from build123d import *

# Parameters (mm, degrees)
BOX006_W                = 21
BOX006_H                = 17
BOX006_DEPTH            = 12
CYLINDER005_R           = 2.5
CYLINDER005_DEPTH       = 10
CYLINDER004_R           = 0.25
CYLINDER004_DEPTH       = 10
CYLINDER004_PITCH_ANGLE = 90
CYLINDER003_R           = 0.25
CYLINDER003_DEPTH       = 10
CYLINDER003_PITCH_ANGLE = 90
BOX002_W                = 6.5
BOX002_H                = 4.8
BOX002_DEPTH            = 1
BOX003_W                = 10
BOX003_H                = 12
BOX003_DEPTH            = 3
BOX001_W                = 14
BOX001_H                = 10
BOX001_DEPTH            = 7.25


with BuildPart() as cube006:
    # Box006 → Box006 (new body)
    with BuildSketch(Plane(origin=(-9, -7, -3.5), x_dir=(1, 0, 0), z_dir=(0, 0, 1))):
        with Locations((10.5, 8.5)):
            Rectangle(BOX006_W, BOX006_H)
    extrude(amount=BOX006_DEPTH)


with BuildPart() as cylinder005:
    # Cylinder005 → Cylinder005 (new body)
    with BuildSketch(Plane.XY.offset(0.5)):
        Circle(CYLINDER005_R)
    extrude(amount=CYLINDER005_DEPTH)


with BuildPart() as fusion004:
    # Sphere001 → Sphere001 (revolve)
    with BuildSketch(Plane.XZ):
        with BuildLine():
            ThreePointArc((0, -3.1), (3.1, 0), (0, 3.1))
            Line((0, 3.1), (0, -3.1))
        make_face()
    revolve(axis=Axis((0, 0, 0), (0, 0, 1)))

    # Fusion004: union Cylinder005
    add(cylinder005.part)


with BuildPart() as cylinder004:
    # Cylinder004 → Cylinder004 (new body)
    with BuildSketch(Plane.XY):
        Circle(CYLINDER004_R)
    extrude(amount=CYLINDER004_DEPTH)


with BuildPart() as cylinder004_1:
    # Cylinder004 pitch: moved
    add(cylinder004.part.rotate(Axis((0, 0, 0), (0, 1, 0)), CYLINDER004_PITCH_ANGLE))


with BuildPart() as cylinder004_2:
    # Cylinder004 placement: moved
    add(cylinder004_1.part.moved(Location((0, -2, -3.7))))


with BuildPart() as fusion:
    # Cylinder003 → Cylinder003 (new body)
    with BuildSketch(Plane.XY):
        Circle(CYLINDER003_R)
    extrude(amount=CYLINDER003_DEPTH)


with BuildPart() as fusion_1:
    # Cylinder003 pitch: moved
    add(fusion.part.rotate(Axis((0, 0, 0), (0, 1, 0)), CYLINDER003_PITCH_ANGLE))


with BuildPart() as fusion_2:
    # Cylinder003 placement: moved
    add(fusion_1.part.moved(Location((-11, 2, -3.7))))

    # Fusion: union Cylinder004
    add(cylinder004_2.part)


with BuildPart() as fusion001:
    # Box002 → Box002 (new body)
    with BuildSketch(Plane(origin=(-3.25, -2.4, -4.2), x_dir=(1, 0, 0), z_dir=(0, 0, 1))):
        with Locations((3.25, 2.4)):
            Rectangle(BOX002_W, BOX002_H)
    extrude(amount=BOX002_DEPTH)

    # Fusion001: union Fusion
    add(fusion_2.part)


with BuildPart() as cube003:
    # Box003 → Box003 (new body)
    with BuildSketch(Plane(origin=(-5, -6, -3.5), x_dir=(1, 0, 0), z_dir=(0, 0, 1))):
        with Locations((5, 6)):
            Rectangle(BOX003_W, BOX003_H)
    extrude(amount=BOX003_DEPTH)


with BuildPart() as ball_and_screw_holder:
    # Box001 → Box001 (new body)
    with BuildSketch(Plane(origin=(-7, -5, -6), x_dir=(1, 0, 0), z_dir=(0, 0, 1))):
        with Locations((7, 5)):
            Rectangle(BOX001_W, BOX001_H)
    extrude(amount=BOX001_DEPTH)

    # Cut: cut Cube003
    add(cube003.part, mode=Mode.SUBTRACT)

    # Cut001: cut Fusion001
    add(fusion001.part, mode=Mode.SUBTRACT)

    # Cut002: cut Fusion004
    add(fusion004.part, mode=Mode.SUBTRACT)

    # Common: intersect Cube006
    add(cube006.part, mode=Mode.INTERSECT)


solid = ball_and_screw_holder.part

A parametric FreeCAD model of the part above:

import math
import FreeCAD as App
import Part
import Sketcher

V = App.Vector
Q = App.Units.Quantity

doc = App.newDocument("Part")
body = doc.addObject("PartDesign::Body", "Body")

# Sketch on XY plane
sketch1 = body.newObject("Sketcher::SketchObject", "Sketch")
sketch1.AttachmentSupport = (doc.getObject("XY_Plane"), [""])
sketch1.MapMode = "FlatFace"
sketch1.AttachmentOffset = App.Placement(V(0, 0, -3.5), App.Rotation())
sketch1.addGeometry([
    Part.LineSegment(V(-9, 10, 0), V(-9, -7, 0)),
    Part.LineSegment(V(-9, -7, 0), V(12, -7, 0)),
    Part.LineSegment(V(12, -7, 0), V(12, 10, 0)),
    Part.LineSegment(V(12, 10, 0), V(-9, 10, 0)),
], False)
sketch1.addConstraint([
    Sketcher.Constraint("Coincident", 0, 2, 1, 1),
    Sketcher.Constraint("Coincident", 1, 2, 2, 1),
    Sketcher.Constraint("Coincident", 2, 2, 3, 1),
    Sketcher.Constraint("Coincident", 3, 2, 0, 1),
    Sketcher.Constraint("Vertical", 0),
    Sketcher.Constraint("Horizontal", 1),
    Sketcher.Constraint("Vertical", 2),
    Sketcher.Constraint("Horizontal", 3),
    Sketcher.Constraint("DistanceX", 1, 1, 1, 2, Q("21 mm")),
    Sketcher.Constraint("DistanceY", 0, 2, 0, 1, Q("17 mm")),
    Sketcher.Constraint("DistanceX", 0, 2, -1, 1, Q("9 mm")),
    Sketcher.Constraint("DistanceY", 0, 2, -1, 1, Q("7 mm")),
])
pad1 = body.newObject("PartDesign::Pad", "Pad")
pad1.Profile = sketch1
pad1.Length = 12
body2 = doc.addObject("PartDesign::Body", "Body001")

# Sketch on XY plane
sketch2 = body2.newObject("Sketcher::SketchObject", "Sketch001")
sketch2.AttachmentSupport = (doc.getObject("XY_Plane001"), [""])
sketch2.MapMode = "FlatFace"
sketch2.AttachmentOffset = App.Placement(V(0, 0, 0.5), App.Rotation())
sketch2.addGeometry(Part.Circle(V(0, 0, 0), V(0, 0, 1), 2.5), False)
sketch2.addConstraint([
    Sketcher.Constraint("Coincident", 0, 3, -1, 1),
    Sketcher.Constraint("Diameter", 0, Q("5 mm")),
])
pad2 = body2.newObject("PartDesign::Pad", "Pad001")
pad2.Profile = sketch2
pad2.Length = 10
body3 = doc.addObject("PartDesign::Body", "Body002")

# Sketch on XZ plane
sketch3 = body3.newObject("Sketcher::SketchObject", "Sketch002")
sketch3.AttachmentSupport = (doc.getObject("XZ_Plane002"), [""])
sketch3.MapMode = "FlatFace"
sketch3.addGeometry([
    Part.ArcOfCircle(Part.Circle(V(0, 0, 0), V(0, 0, 1), 3.1), math.radians(-90), math.radians(90)),
    Part.LineSegment(V(0, 3.1, 0), V(0, -3.1, 0)),
], False)
sketch3.addConstraint([
    Sketcher.Constraint("Coincident", 0, 1, 1, 2),
    Sketcher.Constraint("Coincident", 1, 1, 0, 2),
    Sketcher.Constraint("Vertical", 1),
    Sketcher.Constraint("Coincident", 0, 3, -1, 1),
    Sketcher.Constraint("PointOnObject", 0, 1, -2),
    Sketcher.Constraint("Radius", 0, Q("3.1 mm")),
])
revolution = body3.newObject("PartDesign::Revolution", "Revolution")
revolution.Profile = sketch3
revolution.ReferenceAxis = (sketch3, ["V_Axis"])
revolution.Angle = 360
doc.recompute()

boolean = body3.newObject("PartDesign::Boolean", "Boolean")
boolean.Type = "Fuse"
boolean.addObjects([body2])
body4 = doc.addObject("PartDesign::Body", "Body003")

# Sketch on XY plane
sketch4 = body4.newObject("Sketcher::SketchObject", "Sketch003")
sketch4.AttachmentSupport = (doc.getObject("XY_Plane003"), [""])
sketch4.MapMode = "FlatFace"
sketch4.addGeometry(Part.Circle(V(0, 0, 0), V(0, 0, 1), 0.25), False)
sketch4.addConstraint([
    Sketcher.Constraint("Coincident", 0, 3, -1, 1),
    Sketcher.Constraint("Diameter", 0, Q("0.5 mm")),
])
pad3 = body4.newObject("PartDesign::Pad", "Pad002")
pad3.Profile = sketch4
pad3.Length = 10
body5 = doc.addObject("PartDesign::Body", "Body004")
doc.recompute()

body4.Placement = App.Placement(V(0, 0, 0), App.Rotation(V(0, 1, 0), 90))
boolean2 = body5.newObject("PartDesign::Boolean", "Boolean001")
boolean2.Type = "Fuse"
boolean2.addObjects([body4])
body6 = doc.addObject("PartDesign::Body", "Body005")
doc.recompute()

body5.Placement = App.Placement(V(0, -2, -3.7), App.Rotation(V(0, 0, 1), 0))
boolean3 = body6.newObject("PartDesign::Boolean", "Boolean002")
boolean3.Type = "Fuse"
boolean3.addObjects([body5])
body7 = doc.addObject("PartDesign::Body", "Body006")

# Sketch on XY plane
sketch5 = body7.newObject("Sketcher::SketchObject", "Sketch004")
sketch5.AttachmentSupport = (doc.getObject("XY_Plane006"), [""])
sketch5.MapMode = "FlatFace"
sketch5.addGeometry(Part.Circle(V(0, 0, 0), V(0, 0, 1), 0.25), False)
sketch5.addConstraint([
    Sketcher.Constraint("Coincident", 0, 3, -1, 1),
    Sketcher.Constraint("Diameter", 0, Q("0.5 mm")),
])
pad4 = body7.newObject("PartDesign::Pad", "Pad003")
pad4.Profile = sketch5
pad4.Length = 10
body8 = doc.addObject("PartDesign::Body", "Body007")
doc.recompute()

body7.Placement = App.Placement(V(0, 0, 0), App.Rotation(V(0, 1, 0), 90))
boolean4 = body8.newObject("PartDesign::Boolean", "Boolean003")
boolean4.Type = "Fuse"
boolean4.addObjects([body7])
body9 = doc.addObject("PartDesign::Body", "Body008")
body9.AllowCompound = True
doc.recompute()

body8.Placement = App.Placement(V(-11, 2, -3.7), App.Rotation(V(0, 0, 1), 0))
boolean5 = body9.newObject("PartDesign::Boolean", "Boolean004")
boolean5.Type = "Fuse"
boolean5.addObjects([body8])
doc.recompute()

boolean6 = body9.newObject("PartDesign::Boolean", "Boolean005")
boolean6.Type = "Fuse"
boolean6.addObjects([body6])
body10 = doc.addObject("PartDesign::Body", "Body009")

# Sketch on XY plane
sketch6 = body10.newObject("Sketcher::SketchObject", "Sketch005")
sketch6.AttachmentSupport = (doc.getObject("XY_Plane009"), [""])
sketch6.MapMode = "FlatFace"
sketch6.AttachmentOffset = App.Placement(V(0, 0, -4.2), App.Rotation())
sketch6.addGeometry([
    Part.LineSegment(V(-3.25, 2.4, 0), V(-3.25, -2.4, 0)),
    Part.LineSegment(V(-3.25, -2.4, 0), V(3.25, -2.4, 0)),
    Part.LineSegment(V(3.25, -2.4, 0), V(3.25, 2.4, 0)),
    Part.LineSegment(V(3.25, 2.4, 0), V(-3.25, 2.4, 0)),
], False)
sketch6.addConstraint([
    Sketcher.Constraint("Coincident", 0, 2, 1, 1),
    Sketcher.Constraint("Coincident", 1, 2, 2, 1),
    Sketcher.Constraint("Coincident", 2, 2, 3, 1),
    Sketcher.Constraint("Coincident", 3, 2, 0, 1),
    Sketcher.Constraint("Vertical", 0),
    Sketcher.Constraint("Horizontal", 1),
    Sketcher.Constraint("Vertical", 2),
    Sketcher.Constraint("Horizontal", 3),
    Sketcher.Constraint("Symmetric", 0, 2, 2, 2, -1, 1),
    Sketcher.Constraint("DistanceX", 1, 1, 1, 2, Q("6.5 mm")),
    Sketcher.Constraint("DistanceY", 0, 2, 0, 1, Q("4.8 mm")),
])
pad5 = body10.newObject("PartDesign::Pad", "Pad004")
pad5.Profile = sketch6
pad5.Length = 1
doc.recompute()

boolean7 = body10.newObject("PartDesign::Boolean", "Boolean006")
boolean7.Type = "Fuse"
boolean7.addObjects([body9])
body11 = doc.addObject("PartDesign::Body", "Body010")

# Sketch on XY plane
sketch7 = body11.newObject("Sketcher::SketchObject", "Sketch006")
sketch7.AttachmentSupport = (doc.getObject("XY_Plane010"), [""])
sketch7.MapMode = "FlatFace"
sketch7.AttachmentOffset = App.Placement(V(0, 0, -3.5), App.Rotation())
sketch7.addGeometry([
    Part.LineSegment(V(-5, 6, 0), V(-5, -6, 0)),
    Part.LineSegment(V(-5, -6, 0), V(5, -6, 0)),
    Part.LineSegment(V(5, -6, 0), V(5, 6, 0)),
    Part.LineSegment(V(5, 6, 0), V(-5, 6, 0)),
], False)
sketch7.addConstraint([
    Sketcher.Constraint("Coincident", 0, 2, 1, 1),
    Sketcher.Constraint("Coincident", 1, 2, 2, 1),
    Sketcher.Constraint("Coincident", 2, 2, 3, 1),
    Sketcher.Constraint("Coincident", 3, 2, 0, 1),
    Sketcher.Constraint("Vertical", 0),
    Sketcher.Constraint("Horizontal", 1),
    Sketcher.Constraint("Vertical", 2),
    Sketcher.Constraint("Horizontal", 3),
    Sketcher.Constraint("Symmetric", 0, 2, 2, 2, -1, 1),
    Sketcher.Constraint("DistanceX", 1, 1, 1, 2, Q("10 mm")),
    Sketcher.Constraint("DistanceY", 0, 2, 0, 1, Q("12 mm")),
])
pad6 = body11.newObject("PartDesign::Pad", "Pad005")
pad6.Profile = sketch7
pad6.Length = 3
body12 = doc.addObject("PartDesign::Body", "Body011")

# Sketch on XY plane
sketch8 = body12.newObject("Sketcher::SketchObject", "Sketch007")
sketch8.AttachmentSupport = (doc.getObject("XY_Plane011"), [""])
sketch8.MapMode = "FlatFace"
sketch8.AttachmentOffset = App.Placement(V(0, 0, -6), App.Rotation())
sketch8.addGeometry([
    Part.LineSegment(V(-7, 5, 0), V(-7, -5, 0)),
    Part.LineSegment(V(-7, -5, 0), V(7, -5, 0)),
    Part.LineSegment(V(7, -5, 0), V(7, 5, 0)),
    Part.LineSegment(V(7, 5, 0), V(-7, 5, 0)),
], False)
sketch8.addConstraint([
    Sketcher.Constraint("Coincident", 0, 2, 1, 1),
    Sketcher.Constraint("Coincident", 1, 2, 2, 1),
    Sketcher.Constraint("Coincident", 2, 2, 3, 1),
    Sketcher.Constraint("Coincident", 3, 2, 0, 1),
    Sketcher.Constraint("Vertical", 0),
    Sketcher.Constraint("Horizontal", 1),
    Sketcher.Constraint("Vertical", 2),
    Sketcher.Constraint("Horizontal", 3),
    Sketcher.Constraint("Symmetric", 0, 2, 2, 2, -1, 1),
    Sketcher.Constraint("DistanceX", 1, 1, 1, 2, Q("14 mm")),
    Sketcher.Constraint("DistanceY", 0, 2, 0, 1, Q("10 mm")),
])
pad7 = body12.newObject("PartDesign::Pad", "Pad006")
pad7.Profile = sketch8
pad7.Length = 7.25
doc.recompute()

boolean8 = body12.newObject("PartDesign::Boolean", "Boolean007")
boolean8.Type = "Cut"
boolean8.addObjects([body11])
doc.recompute()

boolean9 = body12.newObject("PartDesign::Boolean", "Boolean008")
boolean9.Type = "Cut"
boolean9.addObjects([body10])
doc.recompute()

boolean10 = body12.newObject("PartDesign::Boolean", "Boolean009")
boolean10.Type = "Cut"
boolean10.addObjects([body3])
doc.recompute()

boolean11 = body12.newObject("PartDesign::Boolean", "Boolean010")
boolean11.Type = "Common"
boolean11.addObjects([body])

doc.recompute()
